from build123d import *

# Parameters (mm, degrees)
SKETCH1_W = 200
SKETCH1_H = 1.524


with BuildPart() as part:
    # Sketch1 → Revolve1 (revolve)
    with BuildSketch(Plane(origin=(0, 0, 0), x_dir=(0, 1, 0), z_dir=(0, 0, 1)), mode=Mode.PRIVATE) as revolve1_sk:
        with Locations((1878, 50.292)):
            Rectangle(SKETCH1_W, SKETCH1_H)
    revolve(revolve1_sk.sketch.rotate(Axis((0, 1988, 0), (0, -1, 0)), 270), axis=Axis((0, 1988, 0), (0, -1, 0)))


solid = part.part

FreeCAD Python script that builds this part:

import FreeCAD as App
import Part
import Sketcher
Q = App.Units.Quantity


def add_polygon(sketch, points):
    """Adds a closed chain of lines whose ends are joined by coincident constraints."""
    first, n = sketch.GeometryCount, len(points)
    for a, b in zip(points, points[1:] + points[:1]):
        sketch.addGeometry(Part.LineSegment(App.Vector(*a, 0), App.Vector(*b, 0)), False)
    for i in range(n):
        sketch.addConstraint(Sketcher.Constraint("Coincident", first + i, 2, first + (i + 1) % n, 1))

doc = App.newDocument("Part")
body = doc.addObject("PartDesign::Body", "Body")

# Sketch on XY plane
sketch1 = body.newObject("Sketcher::SketchObject", "Sketch")
sketch1.AttachmentSupport = (doc.getObject("XY_Plane"), [""])
sketch1.MapMode = "FlatFace"
add_polygon(sketch1, [(-51.1, 1778), (-49.5, 1778), (-49.5, 1978), (-51.1, 1978)])  # lines 0-3
sketch1.addConstraint([
    Sketcher.Constraint("Horizontal", 0),
    Sketcher.Constraint("Vertical", 1),
    Sketcher.Constraint("Horizontal", 2),
    Sketcher.Constraint("Vertical", 3),
    Sketcher.Constraint("DistanceY", 1, 1, 1, 2, Q("200 mm")),
    Sketcher.Constraint("DistanceY", -1, 1, 0, 2, Q("1778 mm")),
    Sketcher.Constraint("DistanceX", 0, 1, 0, 2, Q("1.524 mm")),
    Sketcher.Constraint("DistanceX", 0, 2, -1, 1, Q("49.53 mm")),
])
revolution = body.newObject("PartDesign::Revolution", "Revolution")
revolution.Profile = sketch1
revolution.ReferenceAxis = (sketch1, ["V_Axis"])
revolution.Angle = 360

doc.recompute()
